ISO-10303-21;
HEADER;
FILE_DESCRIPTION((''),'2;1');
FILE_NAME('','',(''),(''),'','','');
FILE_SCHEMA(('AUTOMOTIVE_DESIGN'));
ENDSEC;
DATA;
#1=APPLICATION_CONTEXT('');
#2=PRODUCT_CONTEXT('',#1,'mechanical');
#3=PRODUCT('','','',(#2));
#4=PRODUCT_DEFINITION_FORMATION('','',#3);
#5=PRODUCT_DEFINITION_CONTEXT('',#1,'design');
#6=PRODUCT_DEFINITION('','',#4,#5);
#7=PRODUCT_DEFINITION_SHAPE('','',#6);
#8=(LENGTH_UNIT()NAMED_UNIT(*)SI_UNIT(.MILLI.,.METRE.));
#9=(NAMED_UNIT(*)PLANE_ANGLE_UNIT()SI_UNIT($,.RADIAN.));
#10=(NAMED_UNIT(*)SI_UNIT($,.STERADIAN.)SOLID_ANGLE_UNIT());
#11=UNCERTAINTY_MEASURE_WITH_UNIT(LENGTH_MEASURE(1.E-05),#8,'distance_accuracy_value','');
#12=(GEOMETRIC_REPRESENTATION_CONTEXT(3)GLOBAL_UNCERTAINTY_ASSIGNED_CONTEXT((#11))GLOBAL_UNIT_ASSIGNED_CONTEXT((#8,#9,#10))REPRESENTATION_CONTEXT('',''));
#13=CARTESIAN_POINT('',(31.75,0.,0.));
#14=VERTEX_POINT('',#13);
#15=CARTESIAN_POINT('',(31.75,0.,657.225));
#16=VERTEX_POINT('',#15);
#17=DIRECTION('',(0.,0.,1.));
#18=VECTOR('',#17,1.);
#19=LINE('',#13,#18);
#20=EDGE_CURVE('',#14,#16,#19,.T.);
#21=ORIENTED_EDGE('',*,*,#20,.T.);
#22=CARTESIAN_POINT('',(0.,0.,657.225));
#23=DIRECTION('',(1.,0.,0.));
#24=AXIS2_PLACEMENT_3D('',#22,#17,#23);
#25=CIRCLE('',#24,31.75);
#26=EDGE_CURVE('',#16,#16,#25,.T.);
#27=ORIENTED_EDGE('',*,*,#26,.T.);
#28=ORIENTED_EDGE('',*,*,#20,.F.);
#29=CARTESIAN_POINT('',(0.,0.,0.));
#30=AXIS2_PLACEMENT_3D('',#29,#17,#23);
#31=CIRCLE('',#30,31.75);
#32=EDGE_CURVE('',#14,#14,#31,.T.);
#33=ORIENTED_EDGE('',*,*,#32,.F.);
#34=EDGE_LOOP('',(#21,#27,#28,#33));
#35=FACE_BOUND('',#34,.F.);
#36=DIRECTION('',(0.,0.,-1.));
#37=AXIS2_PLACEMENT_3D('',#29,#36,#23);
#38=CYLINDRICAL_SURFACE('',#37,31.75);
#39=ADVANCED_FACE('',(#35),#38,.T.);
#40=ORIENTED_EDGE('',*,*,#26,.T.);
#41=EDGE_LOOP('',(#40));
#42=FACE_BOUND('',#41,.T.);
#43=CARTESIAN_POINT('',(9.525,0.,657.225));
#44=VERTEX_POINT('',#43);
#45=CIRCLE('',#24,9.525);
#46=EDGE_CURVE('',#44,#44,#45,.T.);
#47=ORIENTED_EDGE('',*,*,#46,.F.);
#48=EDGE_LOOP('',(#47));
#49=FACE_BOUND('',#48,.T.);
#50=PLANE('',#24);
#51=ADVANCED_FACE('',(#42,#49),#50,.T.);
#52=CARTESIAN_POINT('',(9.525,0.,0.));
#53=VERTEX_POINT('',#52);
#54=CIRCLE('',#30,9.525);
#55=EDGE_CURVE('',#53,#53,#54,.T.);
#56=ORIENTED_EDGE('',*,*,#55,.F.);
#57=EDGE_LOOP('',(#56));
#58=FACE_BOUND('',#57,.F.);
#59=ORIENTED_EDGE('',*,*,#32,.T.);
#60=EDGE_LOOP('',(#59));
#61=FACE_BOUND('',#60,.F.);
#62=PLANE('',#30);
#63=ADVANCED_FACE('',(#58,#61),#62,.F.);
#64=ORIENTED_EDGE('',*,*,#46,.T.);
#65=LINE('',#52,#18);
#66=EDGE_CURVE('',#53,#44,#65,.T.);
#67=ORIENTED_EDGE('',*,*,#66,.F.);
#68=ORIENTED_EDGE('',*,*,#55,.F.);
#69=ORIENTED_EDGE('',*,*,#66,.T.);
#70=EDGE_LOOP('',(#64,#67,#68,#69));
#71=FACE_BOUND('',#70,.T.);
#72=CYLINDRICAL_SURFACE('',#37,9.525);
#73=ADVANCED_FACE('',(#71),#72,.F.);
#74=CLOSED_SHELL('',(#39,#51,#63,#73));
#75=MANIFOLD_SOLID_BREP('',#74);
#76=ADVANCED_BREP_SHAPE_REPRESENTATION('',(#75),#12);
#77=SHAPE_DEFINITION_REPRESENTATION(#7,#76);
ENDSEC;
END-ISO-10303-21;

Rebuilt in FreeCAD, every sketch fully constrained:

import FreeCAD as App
import Part
import Sketcher
Q = App.Units.Quantity

doc = App.newDocument("Part")
body = doc.addObject("PartDesign::Body", "Body")

# Sketch on XY plane
sketch1 = doc.addObject("Sketcher::SketchObject", "Sketch")
body.addObject(sketch1)
sketch1.AttachmentSupport = (doc.XY_Plane, [""])
sketch1.MapMode = "FlatFace"
sketch1.addGeometry([
    Part.Circle(App.Vector(0, 0, 0), App.Vector(0, 0, 1), 31.75),
    Part.Circle(App.Vector(0, 0, 0), App.Vector(0, 0, 1), 9.525),
], False)
sketch1.addConstraint([
    Sketcher.Constraint("Coincident", 0, 3, -1, 1),
    Sketcher.Constraint("Coincident", 1, 3, -1, 1),
    Sketcher.Constraint("Diameter", 0, Q("2.5 in")),
    Sketcher.Constraint("Diameter", 1, Q("0.75 in")),
])
pad1 = doc.addObject("PartDesign::Pad", "Pad")
body.addObject(pad1)
pad1.Profile = sketch1
pad1.Length = Q("25.875 in")

doc.recompute()
